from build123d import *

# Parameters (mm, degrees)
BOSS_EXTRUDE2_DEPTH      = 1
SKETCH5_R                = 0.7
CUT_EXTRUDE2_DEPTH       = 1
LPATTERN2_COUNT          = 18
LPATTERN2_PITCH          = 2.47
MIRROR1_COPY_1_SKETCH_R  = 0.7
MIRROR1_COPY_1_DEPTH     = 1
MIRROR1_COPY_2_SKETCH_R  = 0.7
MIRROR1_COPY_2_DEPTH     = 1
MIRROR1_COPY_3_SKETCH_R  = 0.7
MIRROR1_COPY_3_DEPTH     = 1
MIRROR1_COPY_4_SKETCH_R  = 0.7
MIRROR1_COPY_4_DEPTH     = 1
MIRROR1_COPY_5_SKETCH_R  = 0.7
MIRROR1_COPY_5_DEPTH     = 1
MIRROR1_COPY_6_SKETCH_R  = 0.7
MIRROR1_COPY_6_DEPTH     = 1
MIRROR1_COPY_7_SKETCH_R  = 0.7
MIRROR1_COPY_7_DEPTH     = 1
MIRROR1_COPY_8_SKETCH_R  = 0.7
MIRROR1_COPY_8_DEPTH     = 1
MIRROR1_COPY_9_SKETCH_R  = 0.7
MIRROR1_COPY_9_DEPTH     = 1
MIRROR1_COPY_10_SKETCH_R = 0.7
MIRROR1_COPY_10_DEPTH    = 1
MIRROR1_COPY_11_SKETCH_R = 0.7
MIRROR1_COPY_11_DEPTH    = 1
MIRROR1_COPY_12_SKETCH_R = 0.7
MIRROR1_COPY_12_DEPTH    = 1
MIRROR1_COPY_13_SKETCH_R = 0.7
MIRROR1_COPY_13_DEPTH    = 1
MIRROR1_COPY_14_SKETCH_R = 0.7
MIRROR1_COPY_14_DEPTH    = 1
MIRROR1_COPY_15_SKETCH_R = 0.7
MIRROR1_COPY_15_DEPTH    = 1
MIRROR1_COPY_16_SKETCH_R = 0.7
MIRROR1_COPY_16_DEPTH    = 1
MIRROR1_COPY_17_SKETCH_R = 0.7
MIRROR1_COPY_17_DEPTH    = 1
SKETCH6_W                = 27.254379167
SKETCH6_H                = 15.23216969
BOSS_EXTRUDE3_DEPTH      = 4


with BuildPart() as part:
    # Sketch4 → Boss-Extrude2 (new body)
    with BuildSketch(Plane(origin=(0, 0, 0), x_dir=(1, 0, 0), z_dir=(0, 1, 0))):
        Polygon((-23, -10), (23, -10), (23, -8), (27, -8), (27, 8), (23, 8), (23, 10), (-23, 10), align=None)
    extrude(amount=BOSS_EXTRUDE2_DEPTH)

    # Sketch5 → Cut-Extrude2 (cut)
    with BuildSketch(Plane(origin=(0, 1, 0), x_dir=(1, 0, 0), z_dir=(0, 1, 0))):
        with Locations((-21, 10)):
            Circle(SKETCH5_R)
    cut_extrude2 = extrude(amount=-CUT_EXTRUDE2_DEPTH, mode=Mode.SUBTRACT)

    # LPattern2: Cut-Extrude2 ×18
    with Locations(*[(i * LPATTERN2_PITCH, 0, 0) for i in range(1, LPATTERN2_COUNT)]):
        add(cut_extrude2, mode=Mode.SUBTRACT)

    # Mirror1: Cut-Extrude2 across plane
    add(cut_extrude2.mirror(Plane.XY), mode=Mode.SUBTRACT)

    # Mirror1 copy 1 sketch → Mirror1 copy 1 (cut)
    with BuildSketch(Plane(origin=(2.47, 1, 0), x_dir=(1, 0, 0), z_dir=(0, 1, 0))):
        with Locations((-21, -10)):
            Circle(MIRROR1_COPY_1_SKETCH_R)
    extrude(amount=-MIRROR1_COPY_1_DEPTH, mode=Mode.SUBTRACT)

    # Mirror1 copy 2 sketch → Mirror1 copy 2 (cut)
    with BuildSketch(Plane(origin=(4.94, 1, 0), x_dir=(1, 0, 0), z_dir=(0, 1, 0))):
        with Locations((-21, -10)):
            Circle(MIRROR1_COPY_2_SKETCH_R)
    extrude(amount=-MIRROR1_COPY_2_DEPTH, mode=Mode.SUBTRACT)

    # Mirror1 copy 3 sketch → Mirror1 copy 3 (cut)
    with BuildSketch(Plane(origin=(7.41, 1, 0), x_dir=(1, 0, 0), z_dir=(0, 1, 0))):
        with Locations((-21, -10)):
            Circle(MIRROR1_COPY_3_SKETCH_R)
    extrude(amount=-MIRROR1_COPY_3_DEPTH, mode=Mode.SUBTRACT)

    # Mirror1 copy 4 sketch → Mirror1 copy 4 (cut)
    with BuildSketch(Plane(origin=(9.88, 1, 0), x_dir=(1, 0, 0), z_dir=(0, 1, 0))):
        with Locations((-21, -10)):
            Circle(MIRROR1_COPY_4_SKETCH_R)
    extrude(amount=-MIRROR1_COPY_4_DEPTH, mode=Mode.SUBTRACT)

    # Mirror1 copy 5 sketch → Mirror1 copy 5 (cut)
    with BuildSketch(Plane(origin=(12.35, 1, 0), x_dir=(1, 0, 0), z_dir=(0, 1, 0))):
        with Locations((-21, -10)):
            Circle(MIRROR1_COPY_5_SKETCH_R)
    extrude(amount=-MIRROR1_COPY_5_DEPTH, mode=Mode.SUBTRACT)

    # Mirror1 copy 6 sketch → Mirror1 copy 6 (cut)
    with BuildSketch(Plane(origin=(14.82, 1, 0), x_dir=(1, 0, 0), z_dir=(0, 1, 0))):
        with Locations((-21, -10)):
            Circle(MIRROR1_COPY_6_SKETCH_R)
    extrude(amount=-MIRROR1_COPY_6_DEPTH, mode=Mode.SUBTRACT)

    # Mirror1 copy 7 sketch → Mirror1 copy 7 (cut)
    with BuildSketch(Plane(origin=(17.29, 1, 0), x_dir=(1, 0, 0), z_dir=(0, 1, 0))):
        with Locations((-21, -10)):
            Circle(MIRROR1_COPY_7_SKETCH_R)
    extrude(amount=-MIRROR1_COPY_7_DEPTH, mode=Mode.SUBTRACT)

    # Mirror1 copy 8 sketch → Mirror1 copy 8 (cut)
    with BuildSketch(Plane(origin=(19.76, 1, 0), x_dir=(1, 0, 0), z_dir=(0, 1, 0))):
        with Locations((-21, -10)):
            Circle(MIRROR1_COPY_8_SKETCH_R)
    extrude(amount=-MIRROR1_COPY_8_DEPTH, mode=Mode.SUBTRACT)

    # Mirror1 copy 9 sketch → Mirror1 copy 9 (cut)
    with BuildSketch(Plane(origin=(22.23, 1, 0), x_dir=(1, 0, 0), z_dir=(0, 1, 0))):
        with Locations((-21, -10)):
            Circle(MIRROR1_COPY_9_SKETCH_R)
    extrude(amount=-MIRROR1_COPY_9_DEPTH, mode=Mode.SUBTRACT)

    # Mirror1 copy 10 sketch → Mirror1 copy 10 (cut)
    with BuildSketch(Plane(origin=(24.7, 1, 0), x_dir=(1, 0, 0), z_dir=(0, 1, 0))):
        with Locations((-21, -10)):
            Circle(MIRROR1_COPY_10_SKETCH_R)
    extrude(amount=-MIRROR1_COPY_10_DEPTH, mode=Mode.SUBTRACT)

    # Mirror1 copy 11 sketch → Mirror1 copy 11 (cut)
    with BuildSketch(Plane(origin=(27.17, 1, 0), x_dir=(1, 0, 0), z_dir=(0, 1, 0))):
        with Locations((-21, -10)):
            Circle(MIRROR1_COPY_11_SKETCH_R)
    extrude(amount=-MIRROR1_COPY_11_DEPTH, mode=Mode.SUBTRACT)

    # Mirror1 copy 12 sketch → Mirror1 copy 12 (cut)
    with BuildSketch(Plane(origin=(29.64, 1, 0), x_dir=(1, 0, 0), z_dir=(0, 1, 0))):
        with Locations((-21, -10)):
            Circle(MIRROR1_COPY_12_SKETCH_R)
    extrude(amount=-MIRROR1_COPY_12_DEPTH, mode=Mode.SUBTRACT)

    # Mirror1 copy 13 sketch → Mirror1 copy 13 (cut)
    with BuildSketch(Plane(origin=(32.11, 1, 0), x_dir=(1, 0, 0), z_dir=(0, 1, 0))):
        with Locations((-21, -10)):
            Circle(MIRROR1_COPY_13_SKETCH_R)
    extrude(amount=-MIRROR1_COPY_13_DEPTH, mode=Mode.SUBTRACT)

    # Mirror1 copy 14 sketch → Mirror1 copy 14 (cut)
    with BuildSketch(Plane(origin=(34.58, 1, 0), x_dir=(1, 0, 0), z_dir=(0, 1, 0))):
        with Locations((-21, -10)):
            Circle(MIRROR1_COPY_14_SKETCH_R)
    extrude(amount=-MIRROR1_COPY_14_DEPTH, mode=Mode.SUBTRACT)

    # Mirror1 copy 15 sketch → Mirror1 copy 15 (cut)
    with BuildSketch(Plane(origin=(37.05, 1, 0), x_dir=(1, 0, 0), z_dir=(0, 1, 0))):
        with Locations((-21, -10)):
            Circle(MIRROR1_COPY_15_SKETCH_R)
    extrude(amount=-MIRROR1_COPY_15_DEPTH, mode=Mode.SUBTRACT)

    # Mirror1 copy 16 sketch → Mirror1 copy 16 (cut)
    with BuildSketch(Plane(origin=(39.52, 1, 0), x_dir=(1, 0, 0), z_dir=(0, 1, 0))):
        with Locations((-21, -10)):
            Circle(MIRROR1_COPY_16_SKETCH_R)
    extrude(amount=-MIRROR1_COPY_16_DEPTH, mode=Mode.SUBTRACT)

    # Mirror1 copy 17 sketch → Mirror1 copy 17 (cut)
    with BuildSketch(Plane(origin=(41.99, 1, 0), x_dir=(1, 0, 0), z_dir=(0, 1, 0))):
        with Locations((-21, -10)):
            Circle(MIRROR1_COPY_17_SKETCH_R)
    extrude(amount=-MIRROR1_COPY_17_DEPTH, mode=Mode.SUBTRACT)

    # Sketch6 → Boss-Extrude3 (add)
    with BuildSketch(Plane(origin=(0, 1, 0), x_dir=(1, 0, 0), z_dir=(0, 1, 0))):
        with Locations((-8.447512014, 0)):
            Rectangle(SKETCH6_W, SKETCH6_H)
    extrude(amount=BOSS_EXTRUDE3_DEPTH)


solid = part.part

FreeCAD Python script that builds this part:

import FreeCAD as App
import Part
import Sketcher


def add_polygon(sketch, points):
    """Adds a closed chain of lines whose ends are joined by coincident constraints."""
    first, n = sketch.GeometryCount, len(points)
    for a, b in zip(points, points[1:] + points[:1]):
        sketch.addGeometry(Part.LineSegment(App.Vector(*a, 0), App.Vector(*b, 0)), False)
    for i in range(n):
        sketch.addConstraint(Sketcher.Constraint("Coincident", first + i, 2, first + (i + 1) % n, 1))

doc = App.newDocument("Part")
body = doc.addObject("PartDesign::Body", "Body")

# Sketch on XZ plane
sketch1 = doc.addObject("Sketcher::SketchObject", "Sketch")
body.addObject(sketch1)
sketch1.AttachmentSupport = (doc.XZ_Plane, [""])
sketch1.MapMode = "FlatFace"
add_polygon(sketch1, [(-23, 10), (23, 10), (23, 8), (27, 8), (27, -8), (23, -8), (23, -10), (-23, -10)])  # lines 0-7
sketch1.addConstraint([
    Sketcher.Constraint("Horizontal", 0),
    Sketcher.Constraint("Vertical", 1),
    Sketcher.Constraint("Horizontal", 2),
    Sketcher.Constraint("Vertical", 3),
    Sketcher.Constraint("Horizontal", 4),
    Sketcher.Constraint("Vertical", 5),
    Sketcher.Constraint("Horizontal", 6),
    Sketcher.Constraint("Vertical", 7),
    Sketcher.Constraint("Symmetric", 0, 2, 6, 2, -1, 1),
    Sketcher.Constraint("Symmetric", 1, 2, 4, 2, -1),
    Sketcher.Constraint("DistanceX", 0, 1, 0, 2, 46.0),
    Sketcher.Constraint("DistanceX", 2, 1, 2, 2, 4.0),
    Sketcher.Constraint("DistanceY", 1, 2, 1, 1, 2.0),
    Sketcher.Constraint("DistanceY", 3, 2, 3, 1, 16.0),
])
pad1 = doc.addObject("PartDesign::Pad", "Pad")
body.addObject(pad1)
pad1.Profile = sketch1
pad1.Length = 1
pad1.Reversed = True

# Sketch on XZ plane
sketch2 = doc.addObject("Sketcher::SketchObject", "Sketch001")
body.addObject(sketch2)
sketch2.AttachmentSupport = (doc.XZ_Plane, [""])
sketch2.MapMode = "FlatFace"
sketch2.AttachmentOffset = App.Placement(App.Vector(0, 0, -1), App.Rotation())
sketch2.addGeometry(Part.Circle(App.Vector(-21, -10, 0), App.Vector(0, 0, 1), 0.7), False)
sketch2.addConstraint([
    Sketcher.Constraint("Diameter", 0, 1.4),
    Sketcher.Constraint("DistanceX", 0, 3, -1, 1, 21.0),
    Sketcher.Constraint("DistanceY", 0, 3, -1, 1, 10.0),
])
pocket1 = doc.addObject("PartDesign::Pocket", "Pocket")
body.addObject(pocket1)
pocket1.Profile = sketch2
pocket1.Length = 1
pocket1.Reversed = True
doc.recompute()

linearpattern = doc.addObject("PartDesign::LinearPattern", "LinearPattern")
body.addObject(linearpattern)
linearpattern.Originals = [pocket1]
linearpattern.Direction = (doc.X_Axis, [""])
linearpattern.Mode = "offset"
linearpattern.Offset = 2.47
linearpattern.Occurrences = 18
body.Tip = linearpattern
doc.recompute()

mirrored = doc.addObject("PartDesign::Mirrored", "Mirrored")
body.addObject(mirrored)
mirrored.Originals = [pocket1]
mirrored.MirrorPlane = (doc.XY_Plane, [""])
body.Tip = mirrored

# Sketch on XZ plane
sketch3 = doc.addObject("Sketcher::SketchObject", "Sketch002")
body.addObject(sketch3)
sketch3.AttachmentSupport = (doc.XZ_Plane, [""])
sketch3.MapMode = "FlatFace"
sketch3.AttachmentOffset = App.Placement(App.Vector(0, 0, -1), App.Rotation())
sketch3.addGeometry(Part.Circle(App.Vector(-18.5, 10, 0), App.Vector(0, 0, 1), 0.7), False)
sketch3.addConstraint([
    Sketcher.Constraint("Diameter", 0, 1.4),
    Sketcher.Constraint("DistanceY", -1, 1, 0, 3, 10.0),
    Sketcher.Constraint("DistanceX", 0, 3, -1, 1, 18.53),
])
pocket2 = doc.addObject("PartDesign::Pocket", "Pocket001")
body.addObject(pocket2)
pocket2.Profile = sketch3
pocket2.Length = 1
pocket2.Reversed = True

# Sketch on XZ plane
sketch4 = doc.addObject("Sketcher::SketchObject", "Sketch003")
body.addObject(sketch4)
sketch4.AttachmentSupport = (doc.XZ_Plane, [""])
sketch4.MapMode = "FlatFace"
sketch4.AttachmentOffset = App.Placement(App.Vector(0, 0, -1), App.Rotation())
sketch4.addGeometry(Part.Circle(App.Vector(-16.1, 10, 0), App.Vector(0, 0, 1), 0.7), False)
sketch4.addConstraint([
    Sketcher.Constraint("Diameter", 0, 1.4),
    Sketcher.Constraint("DistanceY", -1, 1, 0, 3, 10.0),
    Sketcher.Constraint("DistanceX", 0, 3, -1, 1, 16.06),
])
pocket3 = doc.addObject("PartDesign::Pocket", "Pocket002")
body.addObject(pocket3)
pocket3.Profile = sketch4
pocket3.Length = 1
pocket3.Reversed = True

# Sketch on XZ plane
sketch5 = doc.addObject("Sketcher::SketchObject", "Sketch004")
body.addObject(sketch5)
sketch5.AttachmentSupport = (doc.XZ_Plane, [""])
sketch5.MapMode = "FlatFace"
sketch5.AttachmentOffset = App.Placement(App.Vector(0, 0, -1), App.Rotation())
sketch5.addGeometry(Part.Circle(App.Vector(-13.6, 10, 0), App.Vector(0, 0, 1), 0.7), False)
sketch5.addConstraint([
    Sketcher.Constraint("Diameter", 0, 1.4),
    Sketcher.Constraint("DistanceY", -1, 1, 0, 3, 10.0),
    Sketcher.Constraint("DistanceX", 0, 3, -1, 1, 13.59),
])
pocket4 = doc.addObject("PartDesign::Pocket", "Pocket003")
body.addObject(pocket4)
pocket4.Profile = sketch5
pocket4.Length = 1
pocket4.Reversed = True

# Sketch on XZ plane
sketch6 = doc.addObject("Sketcher::SketchObject", "Sketch005")
body.addObject(sketch6)
sketch6.AttachmentSupport = (doc.XZ_Plane, [""])
sketch6.MapMode = "FlatFace"
sketch6.AttachmentOffset = App.Placement(App.Vector(0, 0, -1), App.Rotation())
sketch6.addGeometry(Part.Circle(App.Vector(-11.1, 10, 0), App.Vector(0, 0, 1), 0.7), False)
sketch6.addConstraint([
    Sketcher.Constraint("Diameter", 0, 1.4),
    Sketcher.Constraint("DistanceY", -1, 1, 0, 3, 10.0),
    Sketcher.Constraint("DistanceX", 0, 3, -1, 1, 11.12),
])
pocket5 = doc.addObject("PartDesign::Pocket", "Pocket004")
body.addObject(pocket5)
pocket5.Profile = sketch6
pocket5.Length = 1
pocket5.Reversed = True

# Sketch on XZ plane
sketch7 = doc.addObject("Sketcher::SketchObject", "Sketch006")
body.addObject(sketch7)
sketch7.AttachmentSupport = (doc.XZ_Plane, [""])
sketch7.MapMode = "FlatFace"
sketch7.AttachmentOffset = App.Placement(App.Vector(0, 0, -1), App.Rotation())
sketch7.addGeometry(Part.Circle(App.Vector(-8.7, 10, 0), App.Vector(0, 0, 1), 0.7), False)
sketch7.addConstraint([
    Sketcher.Constraint("Diameter", 0, 1.4),
    Sketcher.Constraint("DistanceY", -1, 1, 0, 3, 10.0),
    Sketcher.Constraint("DistanceX", 0, 3, -1, 1, 8.65),
])
pocket6 = doc.addObject("PartDesign::Pocket", "Pocket005")
body.addObject(pocket6)
pocket6.Profile = sketch7
pocket6.Length = 1
pocket6.Reversed = True

# Sketch on XZ plane
sketch8 = doc.addObject("Sketcher::SketchObject", "Sketch007")
body.addObject(sketch8)
sketch8.AttachmentSupport = (doc.XZ_Plane, [""])
sketch8.MapMode = "FlatFace"
sketch8.AttachmentOffset = App.Placement(App.Vector(0, 0, -1), App.Rotation())
sketch8.addGeometry(Part.Circle(App.Vector(-6.2, 10, 0), App.Vector(0, 0, 1), 0.7), False)
sketch8.addConstraint([
    Sketcher.Constraint("Diameter", 0, 1.4),
    Sketcher.Constraint("DistanceY", -1, 1, 0, 3, 10.0),
    Sketcher.Constraint("DistanceX", 0, 3, -1, 1, 6.18),
])
pocket7 = doc.addObject("PartDesign::Pocket", "Pocket006")
body.addObject(pocket7)
pocket7.Profile = sketch8
pocket7.Length = 1
pocket7.Reversed = True

# Sketch on XZ plane
sketch9 = doc.addObject("Sketcher::SketchObject", "Sketch008")
body.addObject(sketch9)
sketch9.AttachmentSupport = (doc.XZ_Plane, [""])
sketch9.MapMode = "FlatFace"
sketch9.AttachmentOffset = App.Placement(App.Vector(0, 0, -1), App.Rotation())
sketch9.addGeometry(Part.Circle(App.Vector(-3.7, 10, 0), App.Vector(0, 0, 1), 0.7), False)
sketch9.addConstraint([
    Sketcher.Constraint("Diameter", 0, 1.4),
    Sketcher.Constraint("DistanceY", -1, 1, 0, 3, 10.0),
    Sketcher.Constraint("DistanceX", 0, 3, -1, 1, 3.71),
])
pocket8 = doc.addObject("PartDesign::Pocket", "Pocket007")
body.addObject(pocket8)
pocket8.Profile = sketch9
pocket8.Length = 1
pocket8.Reversed = True

# Sketch on XZ plane
sketch10 = doc.addObject("Sketcher::SketchObject", "Sketch009")
body.addObject(sketch10)
sketch10.AttachmentSupport = (doc.XZ_Plane, [""])
sketch10.MapMode = "FlatFace"
sketch10.AttachmentOffset = App.Placement(App.Vector(0, 0, -1), App.Rotation())
sketch10.addGeometry(Part.Circle(App.Vector(-1.2, 10, 0), App.Vector(0, 0, 1), 0.7), False)
sketch10.addConstraint([
    Sketcher.Constraint("Diameter", 0, 1.4),
    Sketcher.Constraint("DistanceY", -1, 1, 0, 3, 10.0),
    Sketcher.Constraint("DistanceX", 0, 3, -1, 1, 1.24),
])
pocket9 = doc.addObject("PartDesign::Pocket", "Pocket008")
body.addObject(pocket9)
pocket9.Profile = sketch10
pocket9.Length = 1
pocket9.Reversed = True

# Sketch on XZ plane
sketch11 = doc.addObject("Sketcher::SketchObject", "Sketch010")
body.addObject(sketch11)
sketch11.AttachmentSupport = (doc.XZ_Plane, [""])
sketch11.MapMode = "FlatFace"
sketch11.AttachmentOffset = App.Placement(App.Vector(0, 0, -1), App.Rotation())
sketch11.addGeometry(Part.Circle(App.Vector(1.2, 10, 0), App.Vector(0, 0, 1), 0.7), False)
sketch11.addConstraint([
    Sketcher.Constraint("Diameter", 0, 1.4),
    Sketcher.Constraint("DistanceY", -1, 1, 0, 3, 10.0),
    Sketcher.Constraint("DistanceX", -1, 1, 0, 3, 1.23),
])
pocket10 = doc.addObject("PartDesign::Pocket", "Pocket009")
body.addObject(pocket10)
pocket10.Profile = sketch11
pocket10.Length = 1
pocket10.Reversed = True

# Sketch on XZ plane
sketch12 = doc.addObject("Sketcher::SketchObject", "Sketch011")
body.addObject(sketch12)
sketch12.AttachmentSupport = (doc.XZ_Plane, [""])
sketch12.MapMode = "FlatFace"
sketch12.AttachmentOffset = App.Placement(App.Vector(0, 0, -1), App.Rotation())
sketch12.addGeometry(Part.Circle(App.Vector(3.7, 10, 0), App.Vector(0, 0, 1), 0.7), False)
sketch12.addConstraint([
    Sketcher.Constraint("Diameter", 0, 1.4),
    Sketcher.Constraint("DistanceY", -1, 1, 0, 3, 10.0),
    Sketcher.Constraint("DistanceX", -1, 1, 0, 3, 3.7),
])
pocket11 = doc.addObject("PartDesign::Pocket", "Pocket010")
body.addObject(pocket11)
pocket11.Profile = sketch12
pocket11.Length = 1
pocket11.Reversed = True

# Sketch on XZ plane
sketch13 = doc.addObject("Sketcher::SketchObject", "Sketch012")
body.addObject(sketch13)
sketch13.AttachmentSupport = (doc.XZ_Plane, [""])
sketch13.MapMode = "FlatFace"
sketch13.AttachmentOffset = App.Placement(App.Vector(0, 0, -1), App.Rotation())
sketch13.addGeometry(Part.Circle(App.Vector(6.2, 10, 0), App.Vector(0, 0, 1), 0.7), False)
sketch13.addConstraint([
    Sketcher.Constraint("Diameter", 0, 1.4),
    Sketcher.Constraint("DistanceY", -1, 1, 0, 3, 10.0),
    Sketcher.Constraint("DistanceX", -1, 1, 0, 3, 6.17),
])
pocket12 = doc.addObject("PartDesign::Pocket", "Pocket011")
body.addObject(pocket12)
pocket12.Profile = sketch13
pocket12.Length = 1
pocket12.Reversed = True

# Sketch on XZ plane
sketch14 = doc.addObject("Sketcher::SketchObject", "Sketch013")
body.addObject(sketch14)
sketch14.AttachmentSupport = (doc.XZ_Plane, [""])
sketch14.MapMode = "FlatFace"
sketch14.AttachmentOffset = App.Placement(App.Vector(0, 0, -1), App.Rotation())
sketch14.addGeometry(Part.Circle(App.Vector(8.6, 10, 0), App.Vector(0, 0, 1), 0.7), False)
sketch14.addConstraint([
    Sketcher.Constraint("Diameter", 0, 1.4),
    Sketcher.Constraint("DistanceY", -1, 1, 0, 3, 10.0),
    Sketcher.Constraint("DistanceX", -1, 1, 0, 3, 8.64),
])
pocket13 = doc.addObject("PartDesign::Pocket", "Pocket012")
body.addObject(pocket13)
pocket13.Profile = sketch14
pocket13.Length = 1
pocket13.Reversed = True

# Sketch on XZ plane
sketch15 = doc.addObject("Sketcher::SketchObject", "Sketch014")
body.addObject(sketch15)
sketch15.AttachmentSupport = (doc.XZ_Plane, [""])
sketch15.MapMode = "FlatFace"
sketch15.AttachmentOffset = App.Placement(App.Vector(0, 0, -1), App.Rotation())
sketch15.addGeometry(Part.Circle(App.Vector(11.1, 10, 0), App.Vector(0, 0, 1), 0.7), False)
sketch15.addConstraint([
    Sketcher.Constraint("Diameter", 0, 1.4),
    Sketcher.Constraint("DistanceY", -1, 1, 0, 3, 10.0),
    Sketcher.Constraint("DistanceX", -1, 1, 0, 3, 11.11),
])
pocket14 = doc.addObject("PartDesign::Pocket", "Pocket013")
body.addObject(pocket14)
pocket14.Profile = sketch15
pocket14.Length = 1
pocket14.Reversed = True

# Sketch on XZ plane
sketch16 = doc.addObject("Sketcher::SketchObject", "Sketch015")
body.addObject(sketch16)
sketch16.AttachmentSupport = (doc.XZ_Plane, [""])
sketch16.MapMode = "FlatFace"
sketch16.AttachmentOffset = App.Placement(App.Vector(0, 0, -1), App.Rotation())
sketch16.addGeometry(Part.Circle(App.Vector(13.6, 10, 0), App.Vector(0, 0, 1), 0.7), False)
sketch16.addConstraint([
    Sketcher.Constraint("Diameter", 0, 1.4),
    Sketcher.Constraint("DistanceY", -1, 1, 0, 3, 10.0),
    Sketcher.Constraint("DistanceX", -1, 1, 0, 3, 13.58),
])
pocket15 = doc.addObject("PartDesign::Pocket", "Pocket014")
body.addObject(pocket15)
pocket15.Profile = sketch16
pocket15.Length = 1
pocket15.Reversed = True

# Sketch on XZ plane
sketch17 = doc.addObject("Sketcher::SketchObject", "Sketch016")
body.addObject(sketch17)
sketch17.AttachmentSupport = (doc.XZ_Plane, [""])
sketch17.MapMode = "FlatFace"
sketch17.AttachmentOffset = App.Placement(App.Vector(0, 0, -1), App.Rotation())
sketch17.addGeometry(Part.Circle(App.Vector(16.1, 10, 0), App.Vector(0, 0, 1), 0.7), False)
sketch17.addConstraint([
    Sketcher.Constraint("Diameter", 0, 1.4),
    Sketcher.Constraint("DistanceY", -1, 1, 0, 3, 10.0),
    Sketcher.Constraint("DistanceX", -1, 1, 0, 3, 16.05),
])
pocket16 = doc.addObject("PartDesign::Pocket", "Pocket015")
body.addObject(pocket16)
pocket16.Profile = sketch17
pocket16.Length = 1
pocket16.Reversed = True

# Sketch on XZ plane
sketch18 = doc.addObject("Sketcher::SketchObject", "Sketch017")
body.addObject(sketch18)
sketch18.AttachmentSupport = (doc.XZ_Plane, [""])
sketch18.MapMode = "FlatFace"
sketch18.AttachmentOffset = App.Placement(App.Vector(0, 0, -1), App.Rotation())
sketch18.addGeometry(Part.Circle(App.Vector(18.5, 10, 0), App.Vector(0, 0, 1), 0.7), False)
sketch18.addConstraint([
    Sketcher.Constraint("Diameter", 0, 1.4),
    Sketcher.Constraint("DistanceY", -1, 1, 0, 3, 10.0),
    Sketcher.Constraint("DistanceX", -1, 1, 0, 3, 18.52),
])
pocket17 = doc.addObject("PartDesign::Pocket", "Pocket016")
body.addObject(pocket17)
pocket17.Profile = sketch18
pocket17.Length = 1
pocket17.Reversed = True

# Sketch on XZ plane
sketch19 = doc.addObject("Sketcher::SketchObject", "Sketch018")
body.addObject(sketch19)
sketch19.AttachmentSupport = (doc.XZ_Plane, [""])
sketch19.MapMode = "FlatFace"
sketch19.AttachmentOffset = App.Placement(App.Vector(0, 0, -1), App.Rotation())
sketch19.addGeometry(Part.Circle(App.Vector(21, 10, 0), App.Vector(0, 0, 1), 0.7), False)
sketch19.addConstraint([
    Sketcher.Constraint("Diameter", 0, 1.4),
    Sketcher.Constraint("DistanceY", -1, 1, 0, 3, 10.0),
    Sketcher.Constraint("DistanceX", -1, 1, 0, 3, 20.99),
])
pocket18 = doc.addObject("PartDesign::Pocket", "Pocket017")
body.addObject(pocket18)
pocket18.Profile = sketch19
pocket18.Length = 1
pocket18.Reversed = True

# Sketch on XZ plane
sketch20 = doc.addObject("Sketcher::SketchObject", "Sketch019")
body.addObject(sketch20)
sketch20.AttachmentSupport = (doc.XZ_Plane, [""])
sketch20.MapMode = "FlatFace"
sketch20.AttachmentOffset = App.Placement(App.Vector(0, 0, -1), App.Rotation())
add_polygon(sketch20, [(-22, -8), (-22, 8), (5, 8), (5, -8)])  # lines 0-3
sketch20.addConstraint([
    Sketcher.Constraint("Vertical", 0),
    Sketcher.Constraint("Horizontal", 1),
    Sketcher.Constraint("Vertical", 2),
    Sketcher.Constraint("Horizontal", 3),
    Sketcher.Constraint("DistanceX", 1, 1, 1, 2, 27.254379),
    Sketcher.Constraint("DistanceY", 0, 1, 0, 2, 15.23217),
    Sketcher.Constraint("DistanceX", 0, 2, -1, 1, 22.074702),
    Sketcher.Constraint("DistanceY", -1, 1, 0, 2, 7.616085),
])
pad2 = doc.addObject("PartDesign::Pad", "Pad001")
body.addObject(pad2)
pad2.Profile = sketch20
pad2.Length = 4
pad2.Reversed = True

doc.recompute()
